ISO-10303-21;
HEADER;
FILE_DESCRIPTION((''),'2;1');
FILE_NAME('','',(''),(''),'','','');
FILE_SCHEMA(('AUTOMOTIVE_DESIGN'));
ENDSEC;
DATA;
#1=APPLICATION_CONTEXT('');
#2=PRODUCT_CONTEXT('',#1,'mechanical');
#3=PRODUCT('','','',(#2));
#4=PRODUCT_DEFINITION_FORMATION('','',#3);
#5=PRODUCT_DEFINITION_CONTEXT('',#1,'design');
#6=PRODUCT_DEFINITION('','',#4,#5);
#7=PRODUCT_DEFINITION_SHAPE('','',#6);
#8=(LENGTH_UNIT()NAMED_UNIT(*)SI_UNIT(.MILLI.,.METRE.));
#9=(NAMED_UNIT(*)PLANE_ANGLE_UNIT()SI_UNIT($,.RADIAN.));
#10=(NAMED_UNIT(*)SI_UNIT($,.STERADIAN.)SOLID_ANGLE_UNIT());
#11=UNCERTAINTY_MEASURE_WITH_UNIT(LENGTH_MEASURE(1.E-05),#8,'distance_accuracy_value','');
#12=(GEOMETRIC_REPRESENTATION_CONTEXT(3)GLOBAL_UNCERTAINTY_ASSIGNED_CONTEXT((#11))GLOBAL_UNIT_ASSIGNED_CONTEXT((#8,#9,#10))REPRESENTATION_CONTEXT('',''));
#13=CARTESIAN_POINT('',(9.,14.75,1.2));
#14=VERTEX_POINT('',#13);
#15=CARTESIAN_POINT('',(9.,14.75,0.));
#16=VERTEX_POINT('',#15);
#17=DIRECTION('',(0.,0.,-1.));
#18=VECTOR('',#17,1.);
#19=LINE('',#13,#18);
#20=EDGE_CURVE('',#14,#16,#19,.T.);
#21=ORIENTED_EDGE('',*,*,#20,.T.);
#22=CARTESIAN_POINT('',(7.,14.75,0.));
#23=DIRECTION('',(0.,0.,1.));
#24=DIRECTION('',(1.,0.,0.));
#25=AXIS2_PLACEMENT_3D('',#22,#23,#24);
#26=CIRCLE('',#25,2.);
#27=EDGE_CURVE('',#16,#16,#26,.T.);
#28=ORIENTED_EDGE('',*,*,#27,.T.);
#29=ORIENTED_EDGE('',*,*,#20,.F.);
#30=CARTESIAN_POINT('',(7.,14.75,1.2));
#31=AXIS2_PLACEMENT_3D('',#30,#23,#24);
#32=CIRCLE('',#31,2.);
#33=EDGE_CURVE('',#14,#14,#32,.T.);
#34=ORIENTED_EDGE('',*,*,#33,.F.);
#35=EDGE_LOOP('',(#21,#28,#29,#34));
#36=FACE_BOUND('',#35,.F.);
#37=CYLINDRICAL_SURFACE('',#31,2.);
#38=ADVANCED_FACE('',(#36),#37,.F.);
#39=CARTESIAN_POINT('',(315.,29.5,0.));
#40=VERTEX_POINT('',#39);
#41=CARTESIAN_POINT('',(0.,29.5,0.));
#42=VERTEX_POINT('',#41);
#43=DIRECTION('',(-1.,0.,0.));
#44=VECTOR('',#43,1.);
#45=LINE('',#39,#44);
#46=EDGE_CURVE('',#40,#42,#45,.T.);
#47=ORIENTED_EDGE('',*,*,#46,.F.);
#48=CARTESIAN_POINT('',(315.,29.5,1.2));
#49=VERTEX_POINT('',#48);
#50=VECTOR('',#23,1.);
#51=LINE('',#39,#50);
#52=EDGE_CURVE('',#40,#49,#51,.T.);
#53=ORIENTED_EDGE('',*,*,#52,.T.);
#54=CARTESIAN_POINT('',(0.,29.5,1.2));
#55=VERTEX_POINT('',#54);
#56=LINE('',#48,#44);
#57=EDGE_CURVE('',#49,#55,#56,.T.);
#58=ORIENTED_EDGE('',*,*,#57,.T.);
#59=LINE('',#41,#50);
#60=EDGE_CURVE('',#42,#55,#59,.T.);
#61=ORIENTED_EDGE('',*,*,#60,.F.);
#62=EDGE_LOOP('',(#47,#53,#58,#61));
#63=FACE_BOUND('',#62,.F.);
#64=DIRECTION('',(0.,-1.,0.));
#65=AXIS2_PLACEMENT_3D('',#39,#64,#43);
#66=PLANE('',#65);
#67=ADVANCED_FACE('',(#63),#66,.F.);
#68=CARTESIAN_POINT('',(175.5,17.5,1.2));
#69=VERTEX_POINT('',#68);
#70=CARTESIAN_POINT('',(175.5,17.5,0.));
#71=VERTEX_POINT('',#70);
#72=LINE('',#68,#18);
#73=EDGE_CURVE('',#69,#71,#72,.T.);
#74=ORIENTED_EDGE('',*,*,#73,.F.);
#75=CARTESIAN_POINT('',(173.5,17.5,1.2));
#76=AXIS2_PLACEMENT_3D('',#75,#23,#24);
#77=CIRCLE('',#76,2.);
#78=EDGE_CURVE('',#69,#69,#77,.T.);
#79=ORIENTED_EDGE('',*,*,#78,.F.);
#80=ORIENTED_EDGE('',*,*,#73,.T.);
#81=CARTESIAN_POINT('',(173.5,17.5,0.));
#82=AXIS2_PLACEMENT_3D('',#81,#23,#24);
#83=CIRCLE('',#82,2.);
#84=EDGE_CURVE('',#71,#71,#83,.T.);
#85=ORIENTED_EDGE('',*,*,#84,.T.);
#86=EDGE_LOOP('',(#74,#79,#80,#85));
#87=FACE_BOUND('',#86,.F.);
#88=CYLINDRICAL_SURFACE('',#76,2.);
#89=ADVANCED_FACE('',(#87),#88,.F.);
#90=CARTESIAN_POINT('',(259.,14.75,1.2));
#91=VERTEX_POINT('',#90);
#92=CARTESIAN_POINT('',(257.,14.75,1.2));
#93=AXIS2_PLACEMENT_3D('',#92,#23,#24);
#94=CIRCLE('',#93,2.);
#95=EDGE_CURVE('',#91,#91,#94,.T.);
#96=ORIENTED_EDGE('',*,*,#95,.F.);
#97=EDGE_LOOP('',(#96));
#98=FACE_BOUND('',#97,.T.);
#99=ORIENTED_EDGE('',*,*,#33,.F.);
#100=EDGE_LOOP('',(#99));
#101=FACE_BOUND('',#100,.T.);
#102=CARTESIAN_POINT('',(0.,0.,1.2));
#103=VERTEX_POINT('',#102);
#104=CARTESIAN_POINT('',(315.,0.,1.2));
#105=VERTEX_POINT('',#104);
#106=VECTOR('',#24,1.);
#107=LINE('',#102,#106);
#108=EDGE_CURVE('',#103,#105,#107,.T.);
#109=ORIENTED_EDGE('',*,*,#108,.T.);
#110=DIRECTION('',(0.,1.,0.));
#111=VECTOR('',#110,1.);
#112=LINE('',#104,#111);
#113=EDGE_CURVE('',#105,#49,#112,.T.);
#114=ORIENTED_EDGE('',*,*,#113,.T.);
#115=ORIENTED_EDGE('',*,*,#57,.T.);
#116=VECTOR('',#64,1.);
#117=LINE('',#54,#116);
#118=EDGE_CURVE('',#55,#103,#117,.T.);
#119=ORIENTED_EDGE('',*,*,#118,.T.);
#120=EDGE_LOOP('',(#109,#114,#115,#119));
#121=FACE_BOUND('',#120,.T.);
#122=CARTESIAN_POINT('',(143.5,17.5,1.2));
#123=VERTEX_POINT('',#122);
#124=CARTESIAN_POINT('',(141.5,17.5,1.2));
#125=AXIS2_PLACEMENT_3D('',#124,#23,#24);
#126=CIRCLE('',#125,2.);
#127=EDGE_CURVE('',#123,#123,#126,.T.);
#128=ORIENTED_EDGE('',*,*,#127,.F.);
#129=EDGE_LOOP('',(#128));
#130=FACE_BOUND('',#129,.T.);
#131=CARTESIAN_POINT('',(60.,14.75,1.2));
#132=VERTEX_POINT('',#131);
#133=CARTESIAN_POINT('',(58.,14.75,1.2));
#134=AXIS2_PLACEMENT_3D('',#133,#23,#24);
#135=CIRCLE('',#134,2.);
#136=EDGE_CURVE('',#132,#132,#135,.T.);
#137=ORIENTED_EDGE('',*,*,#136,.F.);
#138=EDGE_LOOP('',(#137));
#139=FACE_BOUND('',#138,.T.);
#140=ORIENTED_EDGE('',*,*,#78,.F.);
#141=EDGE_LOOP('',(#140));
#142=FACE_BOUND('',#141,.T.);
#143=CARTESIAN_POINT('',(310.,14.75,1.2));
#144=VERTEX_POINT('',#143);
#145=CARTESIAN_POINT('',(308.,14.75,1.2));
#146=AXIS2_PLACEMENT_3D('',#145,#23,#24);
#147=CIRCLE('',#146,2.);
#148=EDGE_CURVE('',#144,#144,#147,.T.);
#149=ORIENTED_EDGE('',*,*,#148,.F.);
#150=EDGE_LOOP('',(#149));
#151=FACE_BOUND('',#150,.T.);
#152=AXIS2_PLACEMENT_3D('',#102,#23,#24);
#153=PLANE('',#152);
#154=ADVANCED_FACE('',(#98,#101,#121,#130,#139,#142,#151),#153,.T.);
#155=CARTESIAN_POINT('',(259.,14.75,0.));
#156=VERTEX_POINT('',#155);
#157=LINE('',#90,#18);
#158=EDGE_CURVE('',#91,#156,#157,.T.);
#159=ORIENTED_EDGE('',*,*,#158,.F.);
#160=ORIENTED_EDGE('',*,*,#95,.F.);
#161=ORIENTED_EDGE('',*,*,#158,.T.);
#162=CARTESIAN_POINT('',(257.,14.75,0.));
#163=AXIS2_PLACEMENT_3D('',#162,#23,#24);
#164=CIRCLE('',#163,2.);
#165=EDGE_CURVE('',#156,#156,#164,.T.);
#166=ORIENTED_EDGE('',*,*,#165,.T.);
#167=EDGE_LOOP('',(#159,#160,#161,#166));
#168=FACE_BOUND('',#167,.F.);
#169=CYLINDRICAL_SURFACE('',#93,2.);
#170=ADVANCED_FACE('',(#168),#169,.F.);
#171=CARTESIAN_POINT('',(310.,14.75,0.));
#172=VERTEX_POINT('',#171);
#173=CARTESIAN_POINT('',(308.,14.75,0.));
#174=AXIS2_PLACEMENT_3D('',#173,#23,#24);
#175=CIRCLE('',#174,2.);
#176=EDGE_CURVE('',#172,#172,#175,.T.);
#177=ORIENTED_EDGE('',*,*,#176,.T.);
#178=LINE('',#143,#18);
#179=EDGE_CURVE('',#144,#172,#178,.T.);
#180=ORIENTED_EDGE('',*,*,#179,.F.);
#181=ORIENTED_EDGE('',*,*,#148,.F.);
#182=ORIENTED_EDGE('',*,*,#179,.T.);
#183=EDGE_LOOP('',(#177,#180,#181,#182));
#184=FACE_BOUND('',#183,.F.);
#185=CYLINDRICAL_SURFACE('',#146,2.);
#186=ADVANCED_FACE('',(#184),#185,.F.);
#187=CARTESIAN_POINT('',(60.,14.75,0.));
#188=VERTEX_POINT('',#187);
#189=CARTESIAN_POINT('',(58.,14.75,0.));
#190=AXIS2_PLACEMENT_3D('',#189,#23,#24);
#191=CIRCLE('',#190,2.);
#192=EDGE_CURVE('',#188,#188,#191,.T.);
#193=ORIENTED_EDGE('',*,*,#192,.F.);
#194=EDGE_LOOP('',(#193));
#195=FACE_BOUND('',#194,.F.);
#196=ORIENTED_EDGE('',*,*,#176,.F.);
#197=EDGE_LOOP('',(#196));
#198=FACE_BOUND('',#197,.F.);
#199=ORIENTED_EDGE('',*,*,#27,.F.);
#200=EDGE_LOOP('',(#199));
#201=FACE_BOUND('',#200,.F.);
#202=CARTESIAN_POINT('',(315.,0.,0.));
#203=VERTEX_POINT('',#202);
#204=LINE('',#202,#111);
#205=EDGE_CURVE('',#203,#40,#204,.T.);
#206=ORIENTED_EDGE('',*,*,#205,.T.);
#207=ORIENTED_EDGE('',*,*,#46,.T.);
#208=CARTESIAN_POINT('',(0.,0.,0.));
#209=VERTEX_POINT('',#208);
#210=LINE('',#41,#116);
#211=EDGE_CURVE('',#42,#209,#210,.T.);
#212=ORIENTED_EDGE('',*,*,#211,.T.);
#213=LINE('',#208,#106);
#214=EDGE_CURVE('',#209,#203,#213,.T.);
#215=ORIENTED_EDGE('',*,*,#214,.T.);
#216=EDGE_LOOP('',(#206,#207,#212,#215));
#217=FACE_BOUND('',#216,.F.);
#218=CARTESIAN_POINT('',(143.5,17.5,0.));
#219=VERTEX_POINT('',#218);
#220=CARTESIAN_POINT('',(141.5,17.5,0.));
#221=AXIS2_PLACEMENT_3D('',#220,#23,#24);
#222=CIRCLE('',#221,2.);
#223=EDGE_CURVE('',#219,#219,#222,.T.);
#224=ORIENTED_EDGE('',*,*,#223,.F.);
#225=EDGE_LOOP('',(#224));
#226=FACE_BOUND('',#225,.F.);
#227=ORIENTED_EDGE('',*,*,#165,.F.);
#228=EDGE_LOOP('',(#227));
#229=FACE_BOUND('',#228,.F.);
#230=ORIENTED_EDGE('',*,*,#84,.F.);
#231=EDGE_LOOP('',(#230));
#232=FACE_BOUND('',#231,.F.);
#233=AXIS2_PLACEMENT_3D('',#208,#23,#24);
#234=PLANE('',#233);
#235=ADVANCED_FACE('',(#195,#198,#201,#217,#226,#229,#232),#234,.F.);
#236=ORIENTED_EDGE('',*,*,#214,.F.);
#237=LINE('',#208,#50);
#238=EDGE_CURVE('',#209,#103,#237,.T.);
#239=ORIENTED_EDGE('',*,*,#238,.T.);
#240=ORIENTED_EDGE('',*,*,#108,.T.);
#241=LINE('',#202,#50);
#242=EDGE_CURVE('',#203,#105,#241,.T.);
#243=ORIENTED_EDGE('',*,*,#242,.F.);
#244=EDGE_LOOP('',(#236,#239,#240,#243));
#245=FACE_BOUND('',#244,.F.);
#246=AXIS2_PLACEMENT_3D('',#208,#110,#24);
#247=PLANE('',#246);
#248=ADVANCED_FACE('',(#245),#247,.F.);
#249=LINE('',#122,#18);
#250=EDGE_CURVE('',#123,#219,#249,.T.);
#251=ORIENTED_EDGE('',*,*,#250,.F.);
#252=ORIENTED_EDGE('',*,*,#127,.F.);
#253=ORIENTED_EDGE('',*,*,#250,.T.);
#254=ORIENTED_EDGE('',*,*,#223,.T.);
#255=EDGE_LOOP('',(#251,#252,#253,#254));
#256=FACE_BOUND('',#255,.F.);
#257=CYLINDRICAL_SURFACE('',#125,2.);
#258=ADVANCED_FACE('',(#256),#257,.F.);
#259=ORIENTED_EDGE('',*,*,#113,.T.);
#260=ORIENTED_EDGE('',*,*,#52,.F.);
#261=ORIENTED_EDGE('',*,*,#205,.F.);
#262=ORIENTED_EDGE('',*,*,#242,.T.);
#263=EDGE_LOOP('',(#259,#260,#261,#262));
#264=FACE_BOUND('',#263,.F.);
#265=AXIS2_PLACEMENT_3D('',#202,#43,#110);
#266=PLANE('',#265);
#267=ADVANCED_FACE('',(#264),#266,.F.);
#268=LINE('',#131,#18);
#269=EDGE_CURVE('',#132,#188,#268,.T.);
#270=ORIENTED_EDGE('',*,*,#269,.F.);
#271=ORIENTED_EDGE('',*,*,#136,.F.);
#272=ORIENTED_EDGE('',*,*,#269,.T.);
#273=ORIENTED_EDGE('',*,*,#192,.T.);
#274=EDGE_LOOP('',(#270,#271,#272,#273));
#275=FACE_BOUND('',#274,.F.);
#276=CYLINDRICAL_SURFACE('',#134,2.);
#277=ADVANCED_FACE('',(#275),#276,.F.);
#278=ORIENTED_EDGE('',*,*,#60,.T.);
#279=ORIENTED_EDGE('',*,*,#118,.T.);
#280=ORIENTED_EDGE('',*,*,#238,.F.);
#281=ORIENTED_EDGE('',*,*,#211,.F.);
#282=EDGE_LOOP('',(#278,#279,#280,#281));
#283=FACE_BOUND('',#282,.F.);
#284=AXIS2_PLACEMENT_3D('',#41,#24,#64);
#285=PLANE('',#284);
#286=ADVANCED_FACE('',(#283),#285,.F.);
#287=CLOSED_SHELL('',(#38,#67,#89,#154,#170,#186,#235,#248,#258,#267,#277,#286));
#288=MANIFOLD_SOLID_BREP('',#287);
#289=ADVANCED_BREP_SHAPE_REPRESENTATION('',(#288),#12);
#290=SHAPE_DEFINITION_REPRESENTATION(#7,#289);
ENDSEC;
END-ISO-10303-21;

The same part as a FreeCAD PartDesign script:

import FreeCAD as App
import Part
import Sketcher
Q = App.Units.Quantity

doc = App.newDocument("Part")
params = doc.addObject("Spreadsheet::Sheet", "Params")
for row, (alias, value) in enumerate([
    ("sketch1_width", "315 mm"),
    ("sketch1_height", "29.5 mm"),
    ("pad1_length", "1.2 mm"),
    ("sketch2_diameter", "4 mm"),
    ("pocket1_length", "10 mm"),
    ("sketch3_diameter", "4 mm"),
    ("pocket2_length", "10 mm"),
    ("sketch4_diameter", "4 mm"),
    ("pocket3_length", "10 mm"),
], start=1):
    params.set(f"A{row}", alias)
    params.set(f"B{row}", "=" + value)
    params.setAlias(f"B{row}", alias)

body = doc.addObject("PartDesign::Body", "Body")

sketch1 = body.newObject("Sketcher::SketchObject", "Sketch")
sketch1.AttachmentSupport = (doc.getObject("XY_Plane"), [""])
sketch1.MapMode = "FlatFace"
sketch1.addGeometry([
    Part.LineSegment(App.Vector(0, 30, 0), App.Vector(0, 0, 0)),
    Part.LineSegment(App.Vector(0, 0, 0), App.Vector(315, 0, 0)),
    Part.LineSegment(App.Vector(315, 0, 0), App.Vector(315, 30, 0)),
    Part.LineSegment(App.Vector(315, 30, 0), App.Vector(0, 30, 0)),
], False)
sketch1.addConstraint([
    Sketcher.Constraint("Coincident", 0, 2, 1, 1),
    Sketcher.Constraint("Coincident", 1, 2, 2, 1),
    Sketcher.Constraint("Coincident", 2, 2, 3, 1),
    Sketcher.Constraint("Coincident", 3, 2, 0, 1),
    Sketcher.Constraint("Vertical", 0),
    Sketcher.Constraint("Horizontal", 1),
    Sketcher.Constraint("Vertical", 2),
    Sketcher.Constraint("Horizontal", 3),
    Sketcher.Constraint("Coincident", 0, 2, -1, 1),
    Sketcher.Constraint("DistanceX", 1, 1, 1, 2, Q("315 mm")),
    Sketcher.Constraint("DistanceY", 0, 2, 0, 1, Q("29.5 mm")),
])
sketch1.setExpression("Constraints[9]", "Params.sketch1_width")
sketch1.setExpression("Constraints[10]", "Params.sketch1_height")
pad1 = body.newObject("PartDesign::Pad", "Pad")
pad1.Profile = sketch1
pad1.setExpression("Length", "Params.pad1_length")

sketch2 = body.newObject("Sketcher::SketchObject", "Sketch001")
sketch2.AttachmentSupport = (doc.getObject("XY_Plane"), [""])
sketch2.MapMode = "FlatFace"
sketch2.AttachmentOffset = App.Placement(App.Vector(0, 0, 1.2), App.Rotation())
sketch2.addGeometry([
    Part.Circle(App.Vector(58, 14.8, 0), App.Vector(0, 0, 1), 2),
    Part.Circle(App.Vector(7, 14.8, 0), App.Vector(0, 0, 1), 2),
], False)
sketch2.addConstraint([
    Sketcher.Constraint("Equal", 0, 1),
    Sketcher.Constraint("Horizontal", 0, 3, 1, 3),
    Sketcher.Constraint("Diameter", 0, Q("4 mm")),
    Sketcher.Constraint("DistanceX", -1, 1, 0, 3, Q("58 mm")),
    Sketcher.Constraint("DistanceX", -1, 1, 1, 3, Q("7 mm")),
    Sketcher.Constraint("DistanceY", -1, 1, 0, 3, Q("14.75 mm")),
])
sketch2.setExpression("Constraints[2]", "Params.sketch2_diameter")
pocket1 = body.newObject("PartDesign::Pocket", "Pocket")
pocket1.Profile = sketch2
pocket1.setExpression("Length", "Params.pocket1_length")

sketch3 = body.newObject("Sketcher::SketchObject", "Sketch002")
sketch3.AttachmentSupport = (doc.getObject("XY_Plane"), [""])
sketch3.MapMode = "FlatFace"
sketch3.AttachmentOffset = App.Placement(App.Vector(0, 0, 1.2), App.Rotation())
sketch3.addGeometry([
    Part.Circle(App.Vector(173.5, 17.5, 0), App.Vector(0, 0, 1), 2),
    Part.Circle(App.Vector(141.5, 17.5, 0), App.Vector(0, 0, 1), 2),
], False)
sketch3.addConstraint([
    Sketcher.Constraint("Equal", 0, 1),
    Sketcher.Constraint("Horizontal", 0, 3, 1, 3),
    Sketcher.Constraint("Diameter", 0, Q("4 mm")),
    Sketcher.Constraint("DistanceX", 1, 3, 0, 3, Q("32 mm")),
    Sketcher.Constraint("DistanceX", -1, 1, 0, 3, Q("173.5 mm")),
    Sketcher.Constraint("DistanceY", -1, 1, 0, 3, Q("17.5 mm")),
])
sketch3.setExpression("Constraints[2]", "Params.sketch3_diameter")
pocket2 = body.newObject("PartDesign::Pocket", "Pocket001")
pocket2.Profile = sketch3
pocket2.setExpression("Length", "Params.pocket2_length")

sketch4 = body.newObject("Sketcher::SketchObject", "Sketch003")
sketch4.AttachmentSupport = (doc.getObject("XY_Plane"), [""])
sketch4.MapMode = "FlatFace"
sketch4.AttachmentOffset = App.Placement(App.Vector(0, 0, 1.2), App.Rotation())
sketch4.addGeometry([
    Part.Circle(App.Vector(308, 14.8, 0), App.Vector(0, 0, 1), 2),
    Part.Circle(App.Vector(257, 14.8, 0), App.Vector(0, 0, 1), 2),
], False)
sketch4.addConstraint([
    Sketcher.Constraint("Equal", 0, 1),
    Sketcher.Constraint("Horizontal", 0, 3, 1, 3),
    Sketcher.Constraint("Diameter", 0, Q("4 mm")),
    Sketcher.Constraint("DistanceX", -1, 1, 0, 3, Q("308 mm")),
    Sketcher.Constraint("DistanceX", -1, 1, 1, 3, Q("257 mm")),
    Sketcher.Constraint("DistanceY", -1, 1, 0, 3, Q("14.75 mm")),
])
sketch4.setExpression("Constraints[2]", "Params.sketch4_diameter")
pocket3 = body.newObject("PartDesign::Pocket", "Pocket002")
pocket3.Profile = sketch4
pocket3.setExpression("Length", "Params.pocket3_length")

doc.recompute()
